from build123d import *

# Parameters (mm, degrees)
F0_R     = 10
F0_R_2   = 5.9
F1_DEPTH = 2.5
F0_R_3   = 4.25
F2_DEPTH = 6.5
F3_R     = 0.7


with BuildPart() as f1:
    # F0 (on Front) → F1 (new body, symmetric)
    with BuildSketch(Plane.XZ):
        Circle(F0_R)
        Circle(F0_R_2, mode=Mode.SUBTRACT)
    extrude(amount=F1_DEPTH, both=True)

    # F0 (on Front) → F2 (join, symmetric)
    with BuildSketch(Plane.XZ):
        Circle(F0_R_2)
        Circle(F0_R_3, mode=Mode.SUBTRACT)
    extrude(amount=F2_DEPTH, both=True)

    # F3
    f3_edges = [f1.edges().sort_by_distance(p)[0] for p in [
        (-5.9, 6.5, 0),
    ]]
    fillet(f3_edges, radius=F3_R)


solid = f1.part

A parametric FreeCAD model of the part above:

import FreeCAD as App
import Part
import Sketcher
from FreeCAD import Vector


def edges_at(feature, points):
    """Names of the edges that pass closest to the given points."""
    edges = feature.Shape.Edges
    near = lambda p: min(range(len(edges)), key=lambda i: edges[i].distToShape(Part.Vertex(*p))[0])
    return sorted({f"Edge{near(p) + 1}" for p in points})

doc = App.newDocument("Part")
body = doc.addObject("PartDesign::Body", "Body")

# Sketch on XZ plane
sketch1 = doc.addObject("Sketcher::SketchObject", "Sketch")
body.addObject(sketch1)
sketch1.AttachmentSupport = (doc.XZ_Plane, [""])
sketch1.MapMode = "FlatFace"
sketch1.addGeometry([
    Part.Circle(Vector(0, 0, 0), Vector(0, 0, 1), 10),
    Part.Circle(Vector(0, 0, 0), Vector(0, 0, 1), 6),
], False)
sketch1.addConstraint([
    Sketcher.Constraint("Coincident", 0, 3, -1, 1),
    Sketcher.Constraint("Coincident", 1, 3, -1, 1),
    Sketcher.Constraint("Diameter", 0, 20.0),
    Sketcher.Constraint("Diameter", 1, 11.8),
])
pad1 = doc.addObject("PartDesign::Pad", "Pad")
body.addObject(pad1)
pad1.Profile = sketch1
pad1.Length = 5
pad1.Midplane = True

# Sketch on XZ plane
sketch2 = doc.addObject("Sketcher::SketchObject", "Sketch001")
body.addObject(sketch2)
sketch2.AttachmentSupport = (doc.XZ_Plane, [""])
sketch2.MapMode = "FlatFace"
sketch2.addGeometry([
    Part.Circle(Vector(0, 0, 0), Vector(0, 0, 1), 5.9),
    Part.Circle(Vector(0, 0, 0), Vector(0, 0, 1), 4.2),
], False)
sketch2.addConstraint([
    Sketcher.Constraint("Coincident", 0, 3, -1, 1),
    Sketcher.Constraint("Coincident", 1, 3, -1, 1),
    Sketcher.Constraint("Diameter", 0, 11.8),
    Sketcher.Constraint("Diameter", 1, 8.5),
])
pad2 = doc.addObject("PartDesign::Pad", "Pad001")
body.addObject(pad2)
pad2.Profile = sketch2
pad2.Length = 13
pad2.Midplane = True
doc.recompute()

fillet = doc.addObject("PartDesign::Fillet", "Fillet")
body.addObject(fillet)
fillet.Base = (pad2, edges_at(pad2, [(-5.9, 6.5, 0)]))
fillet.Radius = 0.7

doc.recompute()
